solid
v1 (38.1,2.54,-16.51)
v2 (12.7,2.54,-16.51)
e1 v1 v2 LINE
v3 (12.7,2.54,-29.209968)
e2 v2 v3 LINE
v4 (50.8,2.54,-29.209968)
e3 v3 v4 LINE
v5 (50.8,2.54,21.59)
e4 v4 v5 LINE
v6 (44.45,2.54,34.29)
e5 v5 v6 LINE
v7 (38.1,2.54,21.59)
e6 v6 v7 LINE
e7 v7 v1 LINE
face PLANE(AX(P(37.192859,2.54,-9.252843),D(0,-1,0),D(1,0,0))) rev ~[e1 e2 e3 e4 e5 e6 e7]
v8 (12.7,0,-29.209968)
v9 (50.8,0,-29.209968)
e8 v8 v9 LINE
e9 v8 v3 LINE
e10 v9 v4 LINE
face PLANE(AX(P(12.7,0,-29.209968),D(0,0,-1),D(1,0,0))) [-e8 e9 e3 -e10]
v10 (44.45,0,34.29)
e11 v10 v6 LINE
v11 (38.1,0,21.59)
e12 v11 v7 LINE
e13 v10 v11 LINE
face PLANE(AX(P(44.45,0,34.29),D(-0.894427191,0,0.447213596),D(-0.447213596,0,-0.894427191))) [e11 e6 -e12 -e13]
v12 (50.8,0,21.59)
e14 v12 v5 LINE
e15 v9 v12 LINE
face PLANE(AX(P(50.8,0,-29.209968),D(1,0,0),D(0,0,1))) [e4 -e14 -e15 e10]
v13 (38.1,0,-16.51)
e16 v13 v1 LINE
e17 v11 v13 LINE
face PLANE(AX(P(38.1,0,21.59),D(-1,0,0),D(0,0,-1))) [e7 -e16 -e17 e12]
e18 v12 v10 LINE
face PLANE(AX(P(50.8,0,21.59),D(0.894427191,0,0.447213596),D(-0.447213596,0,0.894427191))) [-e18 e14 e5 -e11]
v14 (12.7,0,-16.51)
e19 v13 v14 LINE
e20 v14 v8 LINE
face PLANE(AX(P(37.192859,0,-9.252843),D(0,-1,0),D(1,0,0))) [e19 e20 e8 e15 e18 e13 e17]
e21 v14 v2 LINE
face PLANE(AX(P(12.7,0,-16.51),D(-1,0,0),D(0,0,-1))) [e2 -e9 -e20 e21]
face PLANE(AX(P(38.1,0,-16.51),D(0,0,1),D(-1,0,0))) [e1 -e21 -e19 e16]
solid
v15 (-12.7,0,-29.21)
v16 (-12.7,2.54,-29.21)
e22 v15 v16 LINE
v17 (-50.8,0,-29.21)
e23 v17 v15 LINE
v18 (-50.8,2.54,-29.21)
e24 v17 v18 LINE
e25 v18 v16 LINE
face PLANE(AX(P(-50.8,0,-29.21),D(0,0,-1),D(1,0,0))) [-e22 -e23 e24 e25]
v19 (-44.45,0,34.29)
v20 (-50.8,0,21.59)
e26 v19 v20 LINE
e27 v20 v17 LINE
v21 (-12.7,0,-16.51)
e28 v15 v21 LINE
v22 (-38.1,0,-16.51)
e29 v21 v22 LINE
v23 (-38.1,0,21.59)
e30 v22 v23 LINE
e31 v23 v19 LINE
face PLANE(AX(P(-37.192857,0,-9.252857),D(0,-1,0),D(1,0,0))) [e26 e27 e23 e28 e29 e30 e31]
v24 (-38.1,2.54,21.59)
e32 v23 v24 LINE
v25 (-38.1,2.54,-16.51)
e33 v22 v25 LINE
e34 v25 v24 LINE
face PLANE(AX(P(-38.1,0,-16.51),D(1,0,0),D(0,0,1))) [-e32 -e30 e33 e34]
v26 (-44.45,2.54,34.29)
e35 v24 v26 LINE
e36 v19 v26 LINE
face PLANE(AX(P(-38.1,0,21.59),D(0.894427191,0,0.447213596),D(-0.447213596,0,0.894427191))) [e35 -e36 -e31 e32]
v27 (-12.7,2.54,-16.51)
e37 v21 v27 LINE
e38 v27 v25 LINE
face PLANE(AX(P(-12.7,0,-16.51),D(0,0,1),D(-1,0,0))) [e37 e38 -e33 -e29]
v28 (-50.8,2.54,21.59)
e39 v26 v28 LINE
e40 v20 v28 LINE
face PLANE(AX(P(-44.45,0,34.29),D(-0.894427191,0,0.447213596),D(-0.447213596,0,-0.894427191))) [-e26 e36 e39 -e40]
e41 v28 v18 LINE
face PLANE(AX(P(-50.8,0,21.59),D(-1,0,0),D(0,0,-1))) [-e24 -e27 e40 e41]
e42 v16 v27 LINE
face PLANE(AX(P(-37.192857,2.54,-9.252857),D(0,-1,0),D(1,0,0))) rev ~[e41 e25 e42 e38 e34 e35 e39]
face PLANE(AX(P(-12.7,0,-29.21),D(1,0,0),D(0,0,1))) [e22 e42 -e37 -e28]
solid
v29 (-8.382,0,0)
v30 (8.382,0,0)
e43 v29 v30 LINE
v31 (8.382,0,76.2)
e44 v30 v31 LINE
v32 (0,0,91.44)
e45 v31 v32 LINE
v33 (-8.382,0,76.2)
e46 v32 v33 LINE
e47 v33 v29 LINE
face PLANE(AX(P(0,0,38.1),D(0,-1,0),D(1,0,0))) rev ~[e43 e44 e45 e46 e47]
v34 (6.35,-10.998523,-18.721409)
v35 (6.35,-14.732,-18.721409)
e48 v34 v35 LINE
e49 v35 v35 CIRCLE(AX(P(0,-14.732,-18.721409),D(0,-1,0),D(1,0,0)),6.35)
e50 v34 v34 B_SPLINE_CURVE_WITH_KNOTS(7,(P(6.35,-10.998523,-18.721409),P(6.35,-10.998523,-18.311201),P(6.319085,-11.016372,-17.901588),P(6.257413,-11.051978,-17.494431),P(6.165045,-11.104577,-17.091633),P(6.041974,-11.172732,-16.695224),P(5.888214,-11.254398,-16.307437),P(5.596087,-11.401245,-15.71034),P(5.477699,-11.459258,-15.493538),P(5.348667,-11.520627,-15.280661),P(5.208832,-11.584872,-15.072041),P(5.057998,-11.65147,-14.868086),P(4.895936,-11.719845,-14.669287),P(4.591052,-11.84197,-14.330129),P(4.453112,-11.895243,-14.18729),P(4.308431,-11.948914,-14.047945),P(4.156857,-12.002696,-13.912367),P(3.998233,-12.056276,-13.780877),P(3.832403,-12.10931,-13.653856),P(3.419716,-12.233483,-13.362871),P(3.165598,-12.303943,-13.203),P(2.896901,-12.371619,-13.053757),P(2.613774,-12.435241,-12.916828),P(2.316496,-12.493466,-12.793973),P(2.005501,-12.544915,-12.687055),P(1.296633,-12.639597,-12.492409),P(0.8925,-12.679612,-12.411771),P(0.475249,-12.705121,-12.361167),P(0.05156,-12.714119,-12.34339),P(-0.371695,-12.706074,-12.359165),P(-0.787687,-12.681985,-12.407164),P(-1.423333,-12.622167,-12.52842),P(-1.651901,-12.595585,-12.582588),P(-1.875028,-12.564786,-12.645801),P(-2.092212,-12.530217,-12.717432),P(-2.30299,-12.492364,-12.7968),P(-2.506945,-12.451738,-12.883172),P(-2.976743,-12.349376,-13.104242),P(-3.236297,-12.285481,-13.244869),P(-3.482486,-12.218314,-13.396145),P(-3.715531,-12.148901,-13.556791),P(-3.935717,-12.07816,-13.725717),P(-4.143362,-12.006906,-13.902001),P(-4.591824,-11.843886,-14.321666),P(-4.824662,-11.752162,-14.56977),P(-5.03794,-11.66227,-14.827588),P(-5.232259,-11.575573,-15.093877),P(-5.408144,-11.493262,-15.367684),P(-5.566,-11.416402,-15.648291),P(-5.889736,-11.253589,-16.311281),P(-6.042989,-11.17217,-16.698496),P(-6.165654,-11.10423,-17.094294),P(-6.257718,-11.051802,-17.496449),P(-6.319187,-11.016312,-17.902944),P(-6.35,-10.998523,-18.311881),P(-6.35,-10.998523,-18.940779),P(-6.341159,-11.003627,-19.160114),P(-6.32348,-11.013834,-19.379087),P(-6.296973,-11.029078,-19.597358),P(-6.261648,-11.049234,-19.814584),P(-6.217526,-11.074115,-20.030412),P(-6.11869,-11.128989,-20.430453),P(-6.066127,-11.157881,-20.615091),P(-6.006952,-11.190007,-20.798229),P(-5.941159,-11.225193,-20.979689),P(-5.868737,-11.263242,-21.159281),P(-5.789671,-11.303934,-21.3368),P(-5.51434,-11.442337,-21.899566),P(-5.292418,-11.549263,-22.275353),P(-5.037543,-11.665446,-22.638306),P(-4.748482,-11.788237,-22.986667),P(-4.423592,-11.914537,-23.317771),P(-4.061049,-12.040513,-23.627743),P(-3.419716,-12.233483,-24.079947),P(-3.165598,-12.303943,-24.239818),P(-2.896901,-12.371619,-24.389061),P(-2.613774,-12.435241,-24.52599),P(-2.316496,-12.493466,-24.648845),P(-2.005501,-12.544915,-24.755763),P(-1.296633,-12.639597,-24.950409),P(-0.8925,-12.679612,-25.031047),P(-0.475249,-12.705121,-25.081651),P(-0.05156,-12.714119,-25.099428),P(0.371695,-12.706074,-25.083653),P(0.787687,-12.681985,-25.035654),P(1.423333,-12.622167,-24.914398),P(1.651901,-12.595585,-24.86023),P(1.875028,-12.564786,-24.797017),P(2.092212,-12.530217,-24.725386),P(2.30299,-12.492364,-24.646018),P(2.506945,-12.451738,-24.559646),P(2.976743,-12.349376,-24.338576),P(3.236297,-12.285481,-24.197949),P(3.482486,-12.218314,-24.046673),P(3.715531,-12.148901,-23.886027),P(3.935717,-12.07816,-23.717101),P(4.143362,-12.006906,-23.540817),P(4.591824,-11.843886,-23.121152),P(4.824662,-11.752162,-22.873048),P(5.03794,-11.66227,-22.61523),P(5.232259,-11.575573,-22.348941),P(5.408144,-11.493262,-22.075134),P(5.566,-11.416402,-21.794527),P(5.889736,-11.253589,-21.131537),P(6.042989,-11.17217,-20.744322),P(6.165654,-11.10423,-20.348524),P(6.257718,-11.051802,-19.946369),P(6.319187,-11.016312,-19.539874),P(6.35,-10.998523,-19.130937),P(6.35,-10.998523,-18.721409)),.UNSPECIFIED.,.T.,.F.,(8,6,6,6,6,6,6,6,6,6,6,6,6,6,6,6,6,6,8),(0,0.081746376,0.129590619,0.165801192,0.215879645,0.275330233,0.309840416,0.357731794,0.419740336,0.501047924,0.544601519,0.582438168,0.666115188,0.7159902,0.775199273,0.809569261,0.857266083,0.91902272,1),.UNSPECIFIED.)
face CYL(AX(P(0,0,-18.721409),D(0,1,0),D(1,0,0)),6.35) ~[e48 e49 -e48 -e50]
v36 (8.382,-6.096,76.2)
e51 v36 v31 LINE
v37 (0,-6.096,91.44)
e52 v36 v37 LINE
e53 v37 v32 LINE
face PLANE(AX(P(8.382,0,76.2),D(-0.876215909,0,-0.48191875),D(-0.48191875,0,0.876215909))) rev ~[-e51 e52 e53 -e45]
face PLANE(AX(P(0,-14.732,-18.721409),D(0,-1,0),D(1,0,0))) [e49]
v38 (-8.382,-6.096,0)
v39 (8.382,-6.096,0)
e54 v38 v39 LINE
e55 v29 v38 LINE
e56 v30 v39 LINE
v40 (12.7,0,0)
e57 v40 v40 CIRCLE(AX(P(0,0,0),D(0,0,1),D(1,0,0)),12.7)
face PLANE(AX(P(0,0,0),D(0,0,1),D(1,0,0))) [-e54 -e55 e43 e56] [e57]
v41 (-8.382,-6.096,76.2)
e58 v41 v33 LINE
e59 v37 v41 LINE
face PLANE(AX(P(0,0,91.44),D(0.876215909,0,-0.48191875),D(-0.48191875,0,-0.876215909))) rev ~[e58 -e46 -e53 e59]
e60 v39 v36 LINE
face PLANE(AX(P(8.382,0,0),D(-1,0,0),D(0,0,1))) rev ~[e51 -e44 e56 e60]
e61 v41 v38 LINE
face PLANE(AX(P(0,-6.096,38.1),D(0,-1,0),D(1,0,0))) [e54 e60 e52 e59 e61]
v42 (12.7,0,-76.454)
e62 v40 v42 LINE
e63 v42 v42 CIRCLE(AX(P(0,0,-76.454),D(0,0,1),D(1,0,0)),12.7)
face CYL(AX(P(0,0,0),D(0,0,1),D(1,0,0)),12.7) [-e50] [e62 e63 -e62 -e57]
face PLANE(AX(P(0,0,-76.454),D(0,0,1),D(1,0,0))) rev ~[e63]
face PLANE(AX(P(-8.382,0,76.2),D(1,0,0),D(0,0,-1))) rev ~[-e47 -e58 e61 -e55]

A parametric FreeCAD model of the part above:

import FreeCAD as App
import Part
import Sketcher
Q = App.Units.Quantity

doc = App.newDocument("Part")
body = doc.addObject("PartDesign::Body", "Body")

sketch1 = doc.addObject("Sketcher::SketchObject", "Sketch")
body.addObject(sketch1)
sketch1.AttachmentSupport = (doc.XY_Plane, [""])
sketch1.MapMode = "FlatFace"
sketch1.addGeometry(Part.Circle(App.Vector(0, 0, 0), App.Vector(0, 0, 1), 13), False)
sketch1.addConstraint([
    Sketcher.Constraint("Coincident", 0, 3, -1, 1),
    Sketcher.Constraint("Diameter", 0, Q("1 in")),
])
pad1 = doc.addObject("PartDesign::Pad", "Pad")
body.addObject(pad1)
pad1.Profile = sketch1
pad1.Length = Q("3.01 in")
pad1.Reversed = True

sketch2 = doc.addObject("Sketcher::SketchObject", "Sketch001")
body.addObject(sketch2)
sketch2.AttachmentSupport = (doc.XZ_Plane, [""])
sketch2.MapMode = "FlatFace"
sketch2.addGeometry(Part.Circle(App.Vector(0, -19, 0), App.Vector(0, 0, 1), 6), False)
sketch2.addConstraint([
    Sketcher.Constraint("PointOnObject", 0, 3, -2),
    Sketcher.Constraint("Diameter", 0, Q("0.5 in")),
    Sketcher.Constraint("DistanceY", 0, 3, -1, 1, Q("18.721409 mm")),
])
pad2 = doc.addObject("PartDesign::Pad", "Pad001")
body.addObject(pad2)
pad2.Profile = sketch2
pad2.Length = Q("0.58 in")

sketch3 = doc.addObject("Sketcher::SketchObject", "Sketch002")
body.addObject(sketch3)
sketch3.AttachmentSupport = (doc.XZ_Plane, [""])
sketch3.MapMode = "FlatFace"
sketch3.addGeometry([
    Part.LineSegment(App.Vector(-8, 0, 0), App.Vector(8, 0, 0)),
    Part.LineSegment(App.Vector(8, 0, 0), App.Vector(8, 76, 0)),
    Part.LineSegment(App.Vector(8, 76, 0), App.Vector(0, 91, 0)),
    Part.LineSegment(App.Vector(0, 91, 0), App.Vector(-8, 76, 0)),
    Part.LineSegment(App.Vector(-8, 76, 0), App.Vector(-8, 0, 0)),
], False)
sketch3.addConstraint([
    Sketcher.Constraint("Coincident", 0, 2, 1, 1),
    Sketcher.Constraint("Coincident", 1, 2, 2, 1),
    Sketcher.Constraint("Coincident", 2, 2, 3, 1),
    Sketcher.Constraint("Coincident", 3, 2, 4, 1),
    Sketcher.Constraint("Coincident", 4, 2, 0, 1),
    Sketcher.Constraint("Horizontal", 0),
    Sketcher.Constraint("Vertical", 1),
    Sketcher.Constraint("Vertical", 4),
    Sketcher.Constraint("Symmetric", 0, 2, 4, 2, -1, 1),
    Sketcher.Constraint("PointOnObject", 2, 2, -2),
    Sketcher.Constraint("Horizontal", 1, 2, 3, 2),
    Sketcher.Constraint("DistanceY", 1, 1, 1, 2, Q("3 in")),
    Sketcher.Constraint("DistanceX", 0, 1, 0, 2, Q("0.66 in")),
    Sketcher.Constraint("DistanceY", -1, 1, 2, 2, Q("3.6 in")),
])
pad3 = doc.addObject("PartDesign::Pad", "Pad002")
body.addObject(pad3)
pad3.Profile = sketch3
pad3.Length = Q("0.14 in")

sketch4 = doc.addObject("Sketcher::SketchObject", "Sketch003")
body.addObject(sketch4)
sketch4.AttachmentSupport = (doc.XZ_Plane, [""])
sketch4.MapMode = "FlatFace"
sketch4.addGeometry([
    Part.LineSegment(App.Vector(-8, 0, 0), App.Vector(8, 0, 0)),
    Part.LineSegment(App.Vector(8, 0, 0), App.Vector(8, 76, 0)),
    Part.LineSegment(App.Vector(8, 76, 0), App.Vector(0, 91, 0)),
    Part.LineSegment(App.Vector(0, 91, 0), App.Vector(-8, 76, 0)),
    Part.LineSegment(App.Vector(-8, 76, 0), App.Vector(-8, 0, 0)),
], False)
sketch4.addConstraint([
    Sketcher.Constraint("Coincident", 0, 2, 1, 1),
    Sketcher.Constraint("Coincident", 1, 2, 2, 1),
    Sketcher.Constraint("Coincident", 2, 2, 3, 1),
    Sketcher.Constraint("Coincident", 3, 2, 4, 1),
    Sketcher.Constraint("Coincident", 4, 2, 0, 1),
    Sketcher.Constraint("Horizontal", 0),
    Sketcher.Constraint("Vertical", 1),
    Sketcher.Constraint("Vertical", 4),
    Sketcher.Constraint("Symmetric", 0, 2, 4, 2, -1, 1),
    Sketcher.Constraint("PointOnObject", 2, 2, -2),
    Sketcher.Constraint("Horizontal", 1, 2, 3, 2),
    Sketcher.Constraint("DistanceY", 1, 1, 1, 2, Q("3 in")),
    Sketcher.Constraint("DistanceX", 0, 1, 0, 2, Q("0.66 in")),
    Sketcher.Constraint("DistanceY", -1, 1, 2, 2, Q("3.6 in")),
])
pad4 = doc.addObject("PartDesign::Pad", "Pad003")
body.addObject(pad4)
pad4.Profile = sketch4
pad4.Length = Q("0.24 in")
body2 = doc.addObject("PartDesign::Body", "Body001")
body2.AllowCompound = True

sketch5 = doc.addObject("Sketcher::SketchObject", "Sketch004")
body2.addObject(sketch5)
sketch5.AttachmentSupport = (doc.getObject("XZ_Plane001"), [""])
sketch5.MapMode = "FlatFace"
sketch5.addGeometry([
    Part.LineSegment(App.Vector(-51, -29, 0), App.Vector(-13, -29, 0)),
    Part.LineSegment(App.Vector(-13, -29, 0), App.Vector(-13, -17, 0)),
    Part.LineSegment(App.Vector(-13, -17, 0), App.Vector(-38, -17, 0)),
    Part.LineSegment(App.Vector(-38, -17, 0), App.Vector(-38, 22, 0)),
    Part.LineSegment(App.Vector(-38, 22, 0), App.Vector(-44, 34, 0)),
    Part.LineSegment(App.Vector(-44, 34, 0), App.Vector(-51, 22, 0)),
    Part.LineSegment(App.Vector(-51, 22, 0), App.Vector(-51, -29, 0)),
    Part.LineSegment(App.Vector(13, -17, 0), App.Vector(13, -29, 0)),
    Part.LineSegment(App.Vector(13, -29, 0), App.Vector(51, -29, 0)),
    Part.LineSegment(App.Vector(51, -29, 0), App.Vector(51, 22, 0)),
    Part.LineSegment(App.Vector(51, 22, 0), App.Vector(44, 34, 0)),
    Part.LineSegment(App.Vector(44, 34, 0), App.Vector(38, 22, 0)),
    Part.LineSegment(App.Vector(38, 22, 0), App.Vector(38, -17, 0)),
    Part.LineSegment(App.Vector(38, -17, 0), App.Vector(13, -17, 0)),
], False)
sketch5.addConstraint([
    Sketcher.Constraint("Coincident", 0, 2, 1, 1),
    Sketcher.Constraint("Coincident", 1, 2, 2, 1),
    Sketcher.Constraint("Coincident", 2, 2, 3, 1),
    Sketcher.Constraint("Coincident", 3, 2, 4, 1),
    Sketcher.Constraint("Coincident", 4, 2, 5, 1),
    Sketcher.Constraint("Coincident", 5, 2, 6, 1),
    Sketcher.Constraint("Coincident", 6, 2, 0, 1),
    Sketcher.Constraint("Coincident", 7, 2, 8, 1),
    Sketcher.Constraint("Coincident", 8, 2, 9, 1),
    Sketcher.Constraint("Coincident", 9, 2, 10, 1),
    Sketcher.Constraint("Coincident", 10, 2, 11, 1),
    Sketcher.Constraint("Coincident", 11, 2, 12, 1),
    Sketcher.Constraint("Coincident", 12, 2, 13, 1),
    Sketcher.Constraint("Coincident", 13, 2, 7, 1),
    Sketcher.Constraint("Horizontal", 0),
    Sketcher.Constraint("Vertical", 1),
    Sketcher.Constraint("Horizontal", 2),
    Sketcher.Constraint("Vertical", 3),
    Sketcher.Constraint("Vertical", 6),
    Sketcher.Constraint("Vertical", 7),
    Sketcher.Constraint("Horizontal", 8),
    Sketcher.Constraint("Vertical", 9),
    Sketcher.Constraint("Vertical", 12),
    Sketcher.Constraint("Horizontal", 13),
    Sketcher.Constraint("Symmetric", 5, 2, 9, 2, -2),
    Sketcher.Constraint("Symmetric", 4, 2, 10, 2, -2),
    Sketcher.Constraint("Symmetric", 3, 2, 11, 2, -2),
    Sketcher.Constraint("Symmetric", 1, 2, 13, 2, -2),
    Sketcher.Constraint("Parallel", 4, 10),
    Sketcher.Constraint("Horizontal", 3, 2, 5, 2),
    Sketcher.Constraint("Equal", 8, 3),
    Sketcher.Constraint("DistanceX", 2, 2, 2, 1, Q("1 in")),
    Sketcher.Constraint("DistanceY", 6, 2, 6, 1, Q("2 in")),
    Sketcher.Constraint("DistanceX", 0, 1, 0, 2, Q("1.5 in")),
    Sketcher.Constraint("DistanceX", 5, 2, -1, 1, Q("2 in")),
    Sketcher.Constraint("DistanceY", 2, 2, 4, 2, Q("2 in")),
    Sketcher.Constraint("DistanceY", 0, 2, -1, 1, Q("1.15 in")),
    Sketcher.Constraint("DistanceY", 7, 2, 7, 1, Q("12.699968 mm")),
])
pad5 = doc.addObject("PartDesign::Pad", "Pad004")
body2.addObject(pad5)
pad5.Profile = sketch5
pad5.Length = Q("0.1 in")
pad5.Reversed = True

doc.recompute()
